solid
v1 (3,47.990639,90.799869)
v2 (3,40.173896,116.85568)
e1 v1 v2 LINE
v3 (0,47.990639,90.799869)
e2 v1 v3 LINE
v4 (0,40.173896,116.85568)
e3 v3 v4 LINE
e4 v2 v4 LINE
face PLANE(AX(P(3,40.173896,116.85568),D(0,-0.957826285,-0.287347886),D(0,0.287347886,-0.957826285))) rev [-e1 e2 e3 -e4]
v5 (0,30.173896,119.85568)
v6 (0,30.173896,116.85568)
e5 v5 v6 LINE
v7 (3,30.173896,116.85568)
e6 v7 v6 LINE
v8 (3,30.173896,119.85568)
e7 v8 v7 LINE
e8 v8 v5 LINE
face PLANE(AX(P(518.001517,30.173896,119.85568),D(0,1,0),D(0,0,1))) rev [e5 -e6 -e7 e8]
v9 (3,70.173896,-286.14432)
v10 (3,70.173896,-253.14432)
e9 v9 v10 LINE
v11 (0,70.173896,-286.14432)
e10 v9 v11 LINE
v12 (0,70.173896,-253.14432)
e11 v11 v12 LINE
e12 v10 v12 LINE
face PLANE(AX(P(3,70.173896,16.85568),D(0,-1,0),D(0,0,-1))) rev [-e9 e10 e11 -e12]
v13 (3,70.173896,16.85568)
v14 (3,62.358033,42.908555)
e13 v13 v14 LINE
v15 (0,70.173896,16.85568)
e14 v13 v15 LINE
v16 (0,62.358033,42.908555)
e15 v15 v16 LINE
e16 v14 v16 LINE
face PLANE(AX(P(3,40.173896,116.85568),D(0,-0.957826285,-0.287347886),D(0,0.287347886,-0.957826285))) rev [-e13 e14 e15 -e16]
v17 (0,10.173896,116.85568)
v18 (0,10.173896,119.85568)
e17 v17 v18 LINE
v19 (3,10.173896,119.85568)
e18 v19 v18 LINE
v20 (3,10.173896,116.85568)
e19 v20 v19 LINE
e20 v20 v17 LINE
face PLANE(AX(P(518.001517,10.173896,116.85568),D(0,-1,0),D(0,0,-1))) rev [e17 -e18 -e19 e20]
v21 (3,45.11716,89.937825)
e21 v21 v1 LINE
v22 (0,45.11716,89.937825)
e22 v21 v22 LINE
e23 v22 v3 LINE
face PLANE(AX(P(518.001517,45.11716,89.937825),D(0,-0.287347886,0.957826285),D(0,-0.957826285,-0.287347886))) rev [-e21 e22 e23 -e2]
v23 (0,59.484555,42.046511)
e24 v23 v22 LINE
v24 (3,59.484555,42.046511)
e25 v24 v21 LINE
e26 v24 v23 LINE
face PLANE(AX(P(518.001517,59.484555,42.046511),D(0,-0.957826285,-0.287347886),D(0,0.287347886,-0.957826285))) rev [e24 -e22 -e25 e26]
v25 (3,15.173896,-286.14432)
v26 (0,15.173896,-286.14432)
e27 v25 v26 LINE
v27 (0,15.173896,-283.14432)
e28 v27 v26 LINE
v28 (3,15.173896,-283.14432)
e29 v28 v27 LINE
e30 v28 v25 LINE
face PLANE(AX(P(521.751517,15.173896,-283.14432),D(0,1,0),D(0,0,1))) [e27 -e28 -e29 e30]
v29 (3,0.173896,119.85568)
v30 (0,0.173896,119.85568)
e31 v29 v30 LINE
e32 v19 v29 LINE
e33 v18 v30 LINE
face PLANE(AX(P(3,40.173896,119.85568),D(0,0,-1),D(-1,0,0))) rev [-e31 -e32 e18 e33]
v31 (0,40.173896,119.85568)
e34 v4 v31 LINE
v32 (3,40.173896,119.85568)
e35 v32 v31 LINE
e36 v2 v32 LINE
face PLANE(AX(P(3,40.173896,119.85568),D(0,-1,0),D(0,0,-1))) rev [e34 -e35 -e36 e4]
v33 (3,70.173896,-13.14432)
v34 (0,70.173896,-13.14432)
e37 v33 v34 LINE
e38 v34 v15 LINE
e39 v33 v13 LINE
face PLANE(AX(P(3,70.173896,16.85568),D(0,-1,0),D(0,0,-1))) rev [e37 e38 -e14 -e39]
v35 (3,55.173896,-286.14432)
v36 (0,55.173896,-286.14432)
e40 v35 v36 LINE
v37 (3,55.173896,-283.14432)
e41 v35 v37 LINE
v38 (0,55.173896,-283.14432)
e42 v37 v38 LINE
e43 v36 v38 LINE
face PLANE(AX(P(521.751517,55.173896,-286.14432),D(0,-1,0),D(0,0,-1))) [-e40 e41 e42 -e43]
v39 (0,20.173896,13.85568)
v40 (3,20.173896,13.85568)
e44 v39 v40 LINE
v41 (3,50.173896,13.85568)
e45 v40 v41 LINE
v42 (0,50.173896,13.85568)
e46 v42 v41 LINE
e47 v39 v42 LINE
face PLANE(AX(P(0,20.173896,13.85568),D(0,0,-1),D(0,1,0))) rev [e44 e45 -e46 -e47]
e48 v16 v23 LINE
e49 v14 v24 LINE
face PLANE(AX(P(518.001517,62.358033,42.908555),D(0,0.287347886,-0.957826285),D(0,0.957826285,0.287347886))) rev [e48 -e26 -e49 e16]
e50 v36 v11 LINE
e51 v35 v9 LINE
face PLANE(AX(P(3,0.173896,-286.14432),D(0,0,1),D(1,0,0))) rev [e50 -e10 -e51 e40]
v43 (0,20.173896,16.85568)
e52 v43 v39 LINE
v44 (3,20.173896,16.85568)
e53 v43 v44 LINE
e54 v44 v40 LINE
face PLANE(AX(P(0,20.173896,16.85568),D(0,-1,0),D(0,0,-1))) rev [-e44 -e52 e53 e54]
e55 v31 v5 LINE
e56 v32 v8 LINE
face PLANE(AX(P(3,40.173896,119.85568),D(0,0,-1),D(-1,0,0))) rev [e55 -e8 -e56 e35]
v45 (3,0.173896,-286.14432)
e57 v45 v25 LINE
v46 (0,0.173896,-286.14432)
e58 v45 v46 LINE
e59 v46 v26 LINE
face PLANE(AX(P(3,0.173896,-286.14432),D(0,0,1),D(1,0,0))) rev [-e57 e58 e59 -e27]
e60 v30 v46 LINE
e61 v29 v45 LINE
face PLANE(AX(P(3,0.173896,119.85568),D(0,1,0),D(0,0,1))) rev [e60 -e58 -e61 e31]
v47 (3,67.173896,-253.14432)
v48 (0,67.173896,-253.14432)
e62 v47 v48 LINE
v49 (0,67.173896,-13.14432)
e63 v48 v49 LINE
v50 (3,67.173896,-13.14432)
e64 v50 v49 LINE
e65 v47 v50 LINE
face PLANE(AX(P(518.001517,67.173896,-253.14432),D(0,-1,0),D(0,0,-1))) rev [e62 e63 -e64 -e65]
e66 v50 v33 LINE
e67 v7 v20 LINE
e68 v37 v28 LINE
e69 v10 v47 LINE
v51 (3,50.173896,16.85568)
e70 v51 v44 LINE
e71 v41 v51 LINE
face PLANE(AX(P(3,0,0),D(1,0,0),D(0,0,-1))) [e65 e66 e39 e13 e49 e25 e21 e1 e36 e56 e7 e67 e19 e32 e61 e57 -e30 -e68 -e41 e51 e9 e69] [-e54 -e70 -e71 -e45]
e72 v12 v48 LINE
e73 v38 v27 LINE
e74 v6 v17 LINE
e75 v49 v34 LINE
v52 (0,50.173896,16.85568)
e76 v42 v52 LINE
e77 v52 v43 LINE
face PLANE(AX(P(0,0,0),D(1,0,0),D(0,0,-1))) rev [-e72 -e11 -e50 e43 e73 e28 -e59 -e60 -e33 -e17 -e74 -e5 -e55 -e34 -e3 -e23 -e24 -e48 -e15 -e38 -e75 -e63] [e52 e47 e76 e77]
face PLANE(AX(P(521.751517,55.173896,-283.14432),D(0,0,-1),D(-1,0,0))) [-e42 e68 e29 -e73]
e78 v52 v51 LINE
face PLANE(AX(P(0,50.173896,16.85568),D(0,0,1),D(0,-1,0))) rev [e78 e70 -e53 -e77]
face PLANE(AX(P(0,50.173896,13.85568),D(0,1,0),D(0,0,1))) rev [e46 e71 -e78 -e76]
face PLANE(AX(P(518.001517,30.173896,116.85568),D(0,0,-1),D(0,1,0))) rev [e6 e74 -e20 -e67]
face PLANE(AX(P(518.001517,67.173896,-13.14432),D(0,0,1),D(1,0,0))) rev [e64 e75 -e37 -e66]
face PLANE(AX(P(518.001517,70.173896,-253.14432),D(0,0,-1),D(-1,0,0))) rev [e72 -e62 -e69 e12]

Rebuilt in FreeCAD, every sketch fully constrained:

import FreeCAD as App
import Part
import Sketcher
from FreeCAD import Vector

doc = App.newDocument("Part")
body = doc.addObject("PartDesign::Body", "Body")

sketch1 = doc.addObject("Sketcher::SketchObject", "Sketch")
body.addObject(sketch1)
sketch1.AttachmentSupport = (doc.YZ_Plane, [""])
sketch1.MapMode = "FlatFace"
sketch1.addGeometry([
    Part.LineSegment(Vector(0.2, -286.1, 0), Vector(70.2, -286.1, 0)),
    Part.LineSegment(Vector(70.2, -286.1, 0), Vector(70.2, 16.9, 0)),
    Part.LineSegment(Vector(70.2, 16.9, 0), Vector(40.2, 116.9, 0)),
    Part.LineSegment(Vector(40.2, 116.9, 0), Vector(40.2, 119.9, 0)),
    Part.LineSegment(Vector(40.2, 119.9, 0), Vector(0.2, 119.9, 0)),
    Part.LineSegment(Vector(0.2, 119.9, 0), Vector(0.2, -286.1, 0)),
], False)
sketch1.addConstraint([
    Sketcher.Constraint("Coincident", 0, 2, 1, 1),
    Sketcher.Constraint("Coincident", 1, 2, 2, 1),
    Sketcher.Constraint("Coincident", 2, 2, 3, 1),
    Sketcher.Constraint("Coincident", 3, 2, 4, 1),
    Sketcher.Constraint("Coincident", 4, 2, 5, 1),
    Sketcher.Constraint("Coincident", 5, 2, 0, 1),
    Sketcher.Constraint("Horizontal", 0),
    Sketcher.Constraint("Vertical", 1),
    Sketcher.Constraint("Vertical", 3),
    Sketcher.Constraint("Horizontal", 4),
    Sketcher.Constraint("Vertical", 5),
    Sketcher.Constraint("DistanceX", 0, 1, 0, 2, 70.0),
    Sketcher.Constraint("DistanceX", 4, 2, 4, 1, 40.0),
    Sketcher.Constraint("DistanceY", 1, 1, 1, 2, 303.0),
    Sketcher.Constraint("DistanceY", 3, 1, 3, 2, 3.0),
    Sketcher.Constraint("DistanceY", 5, 2, 5, 1, 406.0),
    Sketcher.Constraint("DistanceY", 0, 2, -1, 1, 286.14432),
    Sketcher.Constraint("DistanceX", -1, 1, 0, 2, 70.173896),
])
pad1 = doc.addObject("PartDesign::Pad", "Pad")
body.addObject(pad1)
pad1.Profile = sketch1
pad1.Length = 3

sketch2 = doc.addObject("Sketcher::SketchObject", "Sketch001")
body.addObject(sketch2)
sketch2.AttachmentSupport = (doc.YZ_Plane, [""])
sketch2.MapMode = "FlatFace"
sketch2.AttachmentOffset = App.Placement(Vector(0, 0, 3), App.Rotation())
sketch2.addGeometry([
    Part.LineSegment(Vector(55, -283, 0), Vector(15, -283, 0)),
    Part.LineSegment(Vector(15, -283, 0), Vector(15, -2774, 0)),
    Part.LineSegment(Vector(15, -2774, 0), Vector(55, -2774, 0)),
    Part.LineSegment(Vector(55, -2774, 0), Vector(55, -283, 0)),
], False)
sketch2.addConstraint([
    Sketcher.Constraint("Coincident", 0, 2, 1, 1),
    Sketcher.Constraint("Coincident", 1, 2, 2, 1),
    Sketcher.Constraint("Coincident", 2, 2, 3, 1),
    Sketcher.Constraint("Coincident", 3, 2, 0, 1),
    Sketcher.Constraint("Horizontal", 0),
    Sketcher.Constraint("Vertical", 1),
    Sketcher.Constraint("Horizontal", 2),
    Sketcher.Constraint("Vertical", 3),
    Sketcher.Constraint("DistanceX", 0, 2, 0, 1, 40.0),
    Sketcher.Constraint("DistanceY", 1, 2, 1, 1, 2491.250597),
    Sketcher.Constraint("DistanceY", 0, 2, -1, 1, 283.14432),
    Sketcher.Constraint("DistanceX", -1, 1, 0, 2, 15.173896),
])
pocket1 = doc.addObject("PartDesign::Pocket", "Pocket")
body.addObject(pocket1)
pocket1.Profile = sketch2
pocket1.Type = "ThroughAll"
pocket1.Midplane = True

sketch3 = doc.addObject("Sketcher::SketchObject", "Sketch002")
body.addObject(sketch3)
sketch3.AttachmentSupport = (doc.YZ_Plane, [""])
sketch3.MapMode = "FlatFace"
sketch3.AttachmentOffset = App.Placement(Vector(0, 0, 3), App.Rotation())
sketch3.addGeometry([
    Part.LineSegment(Vector(67, -253, 0), Vector(2377, -253, 0)),
    Part.LineSegment(Vector(2377, -253, 0), Vector(2377, -13, 0)),
    Part.LineSegment(Vector(2377, -13, 0), Vector(67, -13, 0)),
    Part.LineSegment(Vector(67, -13, 0), Vector(67, -253, 0)),
], False)
sketch3.addConstraint([
    Sketcher.Constraint("Coincident", 0, 2, 1, 1),
    Sketcher.Constraint("Coincident", 1, 2, 2, 1),
    Sketcher.Constraint("Coincident", 2, 2, 3, 1),
    Sketcher.Constraint("Coincident", 3, 2, 0, 1),
    Sketcher.Constraint("Horizontal", 0),
    Sketcher.Constraint("Vertical", 1),
    Sketcher.Constraint("Horizontal", 2),
    Sketcher.Constraint("Vertical", 3),
    Sketcher.Constraint("DistanceY", 1, 1, 1, 2, 240.0),
    Sketcher.Constraint("DistanceX", 0, 1, 0, 2, 2310.069169),
    Sketcher.Constraint("DistanceY", 0, 2, -1, 1, 253.14432),
    Sketcher.Constraint("DistanceX", -1, 1, 0, 2, 2377.243065),
])
pocket2 = doc.addObject("PartDesign::Pocket", "Pocket001")
body.addObject(pocket2)
pocket2.Profile = sketch3
pocket2.Type = "ThroughAll"
pocket2.Midplane = True

sketch4 = doc.addObject("Sketcher::SketchObject", "Sketch003")
body.addObject(sketch4)
sketch4.AttachmentSupport = (doc.YZ_Plane, [""])
sketch4.MapMode = "FlatFace"
sketch4.AttachmentOffset = App.Placement(Vector(0, 0, 3), App.Rotation())
sketch4.addGeometry([
    Part.LineSegment(Vector(62.4, 42.9, 0), Vector(2274.7, 706.6, 0)),
    Part.LineSegment(Vector(2274.7, 706.6, 0), Vector(2260.4, 754.5, 0)),
    Part.LineSegment(Vector(2260.4, 754.5, 0), Vector(48, 90.8, 0)),
    Part.LineSegment(Vector(48, 90.8, 0), Vector(45.1, 89.9, 0)),
    Part.LineSegment(Vector(45.1, 89.9, 0), Vector(59.5, 42, 0)),
    Part.LineSegment(Vector(59.5, 42, 0), Vector(62.4, 42.9, 0)),
], False)
sketch4.addConstraint([
    Sketcher.Constraint("Coincident", 0, 2, 1, 1),
    Sketcher.Constraint("Coincident", 1, 2, 2, 1),
    Sketcher.Constraint("Coincident", 2, 2, 3, 1),
    Sketcher.Constraint("Coincident", 3, 2, 4, 1),
    Sketcher.Constraint("Coincident", 4, 2, 5, 1),
    Sketcher.Constraint("Coincident", 5, 2, 0, 1),
    Sketcher.Constraint("Perpendicular", 0, 1),
    Sketcher.Constraint("Perpendicular", 1, 2),
    Sketcher.Constraint("Parallel", 2, 3),
    Sketcher.Constraint("Perpendicular", 3, 4),
    Sketcher.Constraint("Perpendicular", 4, 5),
    Sketcher.Constraint("Equal", 0, 2),
    Sketcher.Constraint("Distance", 1, 50.0),
    Sketcher.Constraint("Distance", 3, 3.0),
    Sketcher.Constraint("DistanceY", 5, 2, 1, 2, 711.6045),
    Sketcher.Constraint("DistanceY", -1, 1, 0, 2, 706.62174),
    Sketcher.Constraint("DistanceX", -1, 1, 2, 2, 47.990639),
    Sketcher.Constraint("DistanceX", 2, 2, 0, 2, 2226.744678),
])
pocket3 = doc.addObject("PartDesign::Pocket", "Pocket002")
body.addObject(pocket3)
pocket3.Profile = sketch4
pocket3.Type = "ThroughAll"
pocket3.Midplane = True

sketch5 = doc.addObject("Sketcher::SketchObject", "Sketch004")
body.addObject(sketch5)
sketch5.AttachmentSupport = (doc.YZ_Plane, [""])
sketch5.MapMode = "FlatFace"
sketch5.AttachmentOffset = App.Placement(Vector(0, 0, 3), App.Rotation())
sketch5.addGeometry([
    Part.LineSegment(Vector(30, 117, 0), Vector(30, 2612, 0)),
    Part.LineSegment(Vector(30, 2612, 0), Vector(10, 2612, 0)),
    Part.LineSegment(Vector(10, 2612, 0), Vector(10, 117, 0)),
    Part.LineSegment(Vector(10, 117, 0), Vector(30, 117, 0)),
], False)
sketch5.addConstraint([
    Sketcher.Constraint("Coincident", 0, 2, 1, 1),
    Sketcher.Constraint("Coincident", 1, 2, 2, 1),
    Sketcher.Constraint("Coincident", 2, 2, 3, 1),
    Sketcher.Constraint("Coincident", 3, 2, 0, 1),
    Sketcher.Constraint("Vertical", 0),
    Sketcher.Constraint("Horizontal", 1),
    Sketcher.Constraint("Vertical", 2),
    Sketcher.Constraint("Horizontal", 3),
    Sketcher.Constraint("DistanceX", 1, 2, 1, 1, 20.0),
    Sketcher.Constraint("DistanceY", 0, 1, 0, 2, 2495.457309),
    Sketcher.Constraint("DistanceY", -1, 1, 0, 2, 2612.312989),
    Sketcher.Constraint("DistanceX", -1, 1, 0, 2, 30.173896),
])
pocket4 = doc.addObject("PartDesign::Pocket", "Pocket003")
body.addObject(pocket4)
pocket4.Profile = sketch5
pocket4.Type = "ThroughAll"
pocket4.Midplane = True

sketch6 = doc.addObject("Sketcher::SketchObject", "Sketch005")
body.addObject(sketch6)
sketch6.AttachmentSupport = (doc.YZ_Plane, [""])
sketch6.MapMode = "FlatFace"
sketch6.AttachmentOffset = App.Placement(Vector(0, 0, 3), App.Rotation())
sketch6.addGeometry([
    Part.LineSegment(Vector(50.2, 16.9, 0), Vector(20.2, 16.9, 0)),
    Part.LineSegment(Vector(20.2, 16.9, 0), Vector(20.2, 13.9, 0)),
    Part.LineSegment(Vector(20.2, 13.9, 0), Vector(50.2, 13.9, 0)),
    Part.LineSegment(Vector(50.2, 13.9, 0), Vector(50.2, 16.9, 0)),
], False)
sketch6.addConstraint([
    Sketcher.Constraint("Coincident", 0, 2, 1, 1),
    Sketcher.Constraint("Coincident", 1, 2, 2, 1),
    Sketcher.Constraint("Coincident", 2, 2, 3, 1),
    Sketcher.Constraint("Coincident", 3, 2, 0, 1),
    Sketcher.Constraint("Horizontal", 0),
    Sketcher.Constraint("Vertical", 1),
    Sketcher.Constraint("Horizontal", 2),
    Sketcher.Constraint("Vertical", 3),
    Sketcher.Constraint("DistanceX", 0, 2, 0, 1, 30.0),
    Sketcher.Constraint("DistanceY", 1, 2, 1, 1, 3.0),
    Sketcher.Constraint("DistanceY", -1, 1, 0, 2, 16.85568),
    Sketcher.Constraint("DistanceX", -1, 1, 0, 2, 20.173896),
])
pocket5 = doc.addObject("PartDesign::Pocket", "Pocket004")
body.addObject(pocket5)
pocket5.Profile = sketch6
pocket5.Length = 3

doc.recompute()
